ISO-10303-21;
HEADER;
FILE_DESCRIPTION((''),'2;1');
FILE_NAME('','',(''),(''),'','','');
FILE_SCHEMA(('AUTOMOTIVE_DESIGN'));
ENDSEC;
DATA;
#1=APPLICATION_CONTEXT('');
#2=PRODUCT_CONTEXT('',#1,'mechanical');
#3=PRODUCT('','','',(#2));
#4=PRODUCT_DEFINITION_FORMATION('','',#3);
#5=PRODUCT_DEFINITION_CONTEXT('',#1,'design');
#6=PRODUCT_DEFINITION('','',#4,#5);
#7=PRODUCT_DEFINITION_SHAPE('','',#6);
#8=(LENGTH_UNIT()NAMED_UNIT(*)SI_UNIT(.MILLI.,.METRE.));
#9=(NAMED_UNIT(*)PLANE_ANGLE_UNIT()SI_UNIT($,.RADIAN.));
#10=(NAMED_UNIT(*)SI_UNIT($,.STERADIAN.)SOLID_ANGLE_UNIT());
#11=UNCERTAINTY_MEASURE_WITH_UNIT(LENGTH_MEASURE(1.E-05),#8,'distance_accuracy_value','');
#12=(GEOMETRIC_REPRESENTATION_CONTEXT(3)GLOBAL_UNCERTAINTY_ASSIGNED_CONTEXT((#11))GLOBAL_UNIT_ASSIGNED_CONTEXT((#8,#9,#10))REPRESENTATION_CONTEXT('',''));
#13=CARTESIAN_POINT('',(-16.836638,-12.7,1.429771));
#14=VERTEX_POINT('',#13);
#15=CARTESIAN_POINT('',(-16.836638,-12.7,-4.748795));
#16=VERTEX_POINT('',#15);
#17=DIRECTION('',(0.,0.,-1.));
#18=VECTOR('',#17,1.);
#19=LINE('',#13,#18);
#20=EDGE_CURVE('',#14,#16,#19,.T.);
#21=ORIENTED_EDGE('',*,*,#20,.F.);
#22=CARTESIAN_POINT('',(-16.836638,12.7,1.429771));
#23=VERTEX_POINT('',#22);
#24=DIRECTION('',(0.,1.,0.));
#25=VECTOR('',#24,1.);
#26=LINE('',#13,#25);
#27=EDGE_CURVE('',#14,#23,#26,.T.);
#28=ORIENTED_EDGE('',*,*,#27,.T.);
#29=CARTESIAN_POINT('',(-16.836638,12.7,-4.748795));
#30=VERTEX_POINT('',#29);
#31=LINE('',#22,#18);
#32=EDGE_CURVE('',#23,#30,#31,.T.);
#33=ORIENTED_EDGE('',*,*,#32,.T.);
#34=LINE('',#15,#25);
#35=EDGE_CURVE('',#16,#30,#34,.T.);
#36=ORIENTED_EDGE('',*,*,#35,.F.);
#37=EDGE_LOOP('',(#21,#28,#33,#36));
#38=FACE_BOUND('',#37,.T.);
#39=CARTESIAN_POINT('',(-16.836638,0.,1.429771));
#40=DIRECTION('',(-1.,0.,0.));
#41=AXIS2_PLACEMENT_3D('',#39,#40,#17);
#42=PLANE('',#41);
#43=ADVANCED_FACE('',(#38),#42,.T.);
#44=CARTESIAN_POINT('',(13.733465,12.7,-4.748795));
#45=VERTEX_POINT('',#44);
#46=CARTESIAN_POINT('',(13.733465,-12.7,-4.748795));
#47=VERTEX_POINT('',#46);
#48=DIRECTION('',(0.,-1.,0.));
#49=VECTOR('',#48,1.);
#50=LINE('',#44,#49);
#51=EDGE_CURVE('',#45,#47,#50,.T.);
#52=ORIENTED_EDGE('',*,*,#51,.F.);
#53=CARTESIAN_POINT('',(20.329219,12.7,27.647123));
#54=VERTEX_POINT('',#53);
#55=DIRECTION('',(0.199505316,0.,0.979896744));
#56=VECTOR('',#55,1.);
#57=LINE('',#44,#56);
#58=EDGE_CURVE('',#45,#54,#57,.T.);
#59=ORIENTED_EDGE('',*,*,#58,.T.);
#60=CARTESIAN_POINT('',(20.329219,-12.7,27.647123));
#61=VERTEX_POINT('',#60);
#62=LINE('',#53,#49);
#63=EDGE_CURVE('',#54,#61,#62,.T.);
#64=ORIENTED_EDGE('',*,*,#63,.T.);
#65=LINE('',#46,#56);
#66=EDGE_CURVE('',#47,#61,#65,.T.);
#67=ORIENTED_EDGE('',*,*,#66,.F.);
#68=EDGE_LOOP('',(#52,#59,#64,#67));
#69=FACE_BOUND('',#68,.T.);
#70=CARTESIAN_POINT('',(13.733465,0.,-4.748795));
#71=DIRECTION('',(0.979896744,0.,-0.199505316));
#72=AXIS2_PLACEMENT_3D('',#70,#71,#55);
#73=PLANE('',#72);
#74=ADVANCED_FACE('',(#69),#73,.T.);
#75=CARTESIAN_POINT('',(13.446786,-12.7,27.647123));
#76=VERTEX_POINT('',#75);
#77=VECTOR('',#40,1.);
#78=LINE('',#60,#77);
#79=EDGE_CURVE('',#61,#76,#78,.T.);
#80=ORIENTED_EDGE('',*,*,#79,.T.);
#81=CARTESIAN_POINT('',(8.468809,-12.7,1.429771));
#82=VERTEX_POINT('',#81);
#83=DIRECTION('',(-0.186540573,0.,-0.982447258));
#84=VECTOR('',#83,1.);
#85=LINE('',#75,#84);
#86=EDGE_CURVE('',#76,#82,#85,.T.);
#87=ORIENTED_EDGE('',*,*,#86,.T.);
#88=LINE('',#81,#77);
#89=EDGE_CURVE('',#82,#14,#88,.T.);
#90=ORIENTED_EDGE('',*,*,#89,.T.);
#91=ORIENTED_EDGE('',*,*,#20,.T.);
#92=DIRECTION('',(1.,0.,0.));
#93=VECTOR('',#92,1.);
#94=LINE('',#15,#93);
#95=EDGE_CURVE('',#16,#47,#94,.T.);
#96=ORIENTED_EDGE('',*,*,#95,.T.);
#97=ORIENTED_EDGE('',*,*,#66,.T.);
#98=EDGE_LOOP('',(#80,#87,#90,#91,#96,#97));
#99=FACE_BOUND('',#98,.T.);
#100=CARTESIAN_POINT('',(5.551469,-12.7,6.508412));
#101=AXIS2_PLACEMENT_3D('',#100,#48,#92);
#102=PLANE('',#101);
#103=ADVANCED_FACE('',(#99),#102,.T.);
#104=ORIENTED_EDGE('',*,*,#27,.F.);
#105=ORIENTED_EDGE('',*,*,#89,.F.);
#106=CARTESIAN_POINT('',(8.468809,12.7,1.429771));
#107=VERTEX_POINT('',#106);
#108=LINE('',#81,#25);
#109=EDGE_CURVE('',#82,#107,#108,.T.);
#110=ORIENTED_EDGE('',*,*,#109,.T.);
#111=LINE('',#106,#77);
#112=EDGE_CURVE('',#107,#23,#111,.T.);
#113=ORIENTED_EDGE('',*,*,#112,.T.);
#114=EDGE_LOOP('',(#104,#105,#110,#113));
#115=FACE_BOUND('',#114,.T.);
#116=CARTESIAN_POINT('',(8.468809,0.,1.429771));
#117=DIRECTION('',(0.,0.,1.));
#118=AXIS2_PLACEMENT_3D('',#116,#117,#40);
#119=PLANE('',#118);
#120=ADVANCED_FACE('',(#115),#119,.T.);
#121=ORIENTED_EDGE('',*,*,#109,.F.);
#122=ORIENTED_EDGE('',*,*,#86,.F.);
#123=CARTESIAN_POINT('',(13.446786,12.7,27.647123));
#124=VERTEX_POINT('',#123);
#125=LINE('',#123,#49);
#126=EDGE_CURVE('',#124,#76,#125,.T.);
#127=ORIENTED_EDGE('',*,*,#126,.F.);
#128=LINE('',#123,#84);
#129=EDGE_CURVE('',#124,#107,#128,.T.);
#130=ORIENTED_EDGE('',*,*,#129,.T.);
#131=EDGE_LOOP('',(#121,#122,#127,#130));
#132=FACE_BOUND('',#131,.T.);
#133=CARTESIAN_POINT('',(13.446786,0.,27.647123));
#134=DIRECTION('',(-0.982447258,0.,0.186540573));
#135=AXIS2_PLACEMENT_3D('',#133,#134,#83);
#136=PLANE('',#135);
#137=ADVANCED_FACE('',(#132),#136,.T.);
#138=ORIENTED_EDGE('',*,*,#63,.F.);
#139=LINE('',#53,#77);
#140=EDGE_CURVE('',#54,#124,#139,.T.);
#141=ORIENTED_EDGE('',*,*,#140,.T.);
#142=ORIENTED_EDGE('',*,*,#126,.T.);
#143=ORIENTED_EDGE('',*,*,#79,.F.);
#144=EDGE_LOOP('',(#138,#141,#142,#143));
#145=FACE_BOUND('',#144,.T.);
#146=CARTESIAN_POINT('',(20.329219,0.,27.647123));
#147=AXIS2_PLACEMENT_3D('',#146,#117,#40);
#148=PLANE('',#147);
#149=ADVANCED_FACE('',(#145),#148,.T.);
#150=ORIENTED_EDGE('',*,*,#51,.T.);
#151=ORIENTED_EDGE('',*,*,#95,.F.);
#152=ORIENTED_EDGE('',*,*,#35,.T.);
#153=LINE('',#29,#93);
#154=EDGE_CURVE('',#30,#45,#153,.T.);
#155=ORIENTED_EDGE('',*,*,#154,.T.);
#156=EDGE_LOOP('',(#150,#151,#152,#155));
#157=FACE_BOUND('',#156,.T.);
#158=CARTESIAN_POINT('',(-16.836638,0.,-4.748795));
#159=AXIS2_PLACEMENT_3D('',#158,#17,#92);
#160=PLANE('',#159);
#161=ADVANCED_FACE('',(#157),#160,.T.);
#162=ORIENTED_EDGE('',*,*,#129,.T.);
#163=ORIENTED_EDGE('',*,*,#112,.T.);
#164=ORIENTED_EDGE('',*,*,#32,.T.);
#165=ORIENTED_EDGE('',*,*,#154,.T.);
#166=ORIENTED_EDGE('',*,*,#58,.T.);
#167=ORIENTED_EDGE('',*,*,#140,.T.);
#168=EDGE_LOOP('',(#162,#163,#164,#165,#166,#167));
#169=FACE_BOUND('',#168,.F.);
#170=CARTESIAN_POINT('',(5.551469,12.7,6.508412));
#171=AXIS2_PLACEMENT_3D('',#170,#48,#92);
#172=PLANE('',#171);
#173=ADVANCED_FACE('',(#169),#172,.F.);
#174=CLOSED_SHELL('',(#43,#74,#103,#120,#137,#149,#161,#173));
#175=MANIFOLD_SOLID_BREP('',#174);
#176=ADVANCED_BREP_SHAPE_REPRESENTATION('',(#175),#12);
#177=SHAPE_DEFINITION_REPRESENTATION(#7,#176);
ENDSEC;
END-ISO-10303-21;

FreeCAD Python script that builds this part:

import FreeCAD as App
import Part
import Sketcher
from FreeCAD import Vector
Q = App.Units.Quantity

doc = App.newDocument("Part")
body = doc.addObject("PartDesign::Body", "Body")

sketch1 = body.newObject("Sketcher::SketchObject", "Sketch")
sketch1.AttachmentSupport = (doc.getObject("XZ_Plane"), [""])
sketch1.MapMode = "FlatFace"
sketch1.addGeometry(Part.LineSegment(Vector(-16.836638, -4.748795, 0), Vector(13.733465, -4.748795, 0)), False)
sketch1.addGeometry(Part.LineSegment(Vector(13.733465, -4.748795, 0), Vector(20.329219, 27.647123, 0)), False)
sketch1.addGeometry(Part.LineSegment(Vector(20.329219, 27.647123, 0), Vector(13.446786, 27.647123, 0)), False)
sketch1.addGeometry(Part.LineSegment(Vector(13.446786, 27.647123, 0), Vector(8.468809, 1.429771, 0)), False)
sketch1.addGeometry(Part.LineSegment(Vector(8.468809, 1.429771, 0), Vector(-16.836638, 1.429771, 0)), False)
sketch1.addGeometry(Part.LineSegment(Vector(-16.836638, 1.429771, 0), Vector(-16.836638, -4.748795, 0)), False)
sketch1.addConstraint(Sketcher.Constraint("Coincident", 0, 2, 1, 1))
sketch1.addConstraint(Sketcher.Constraint("Coincident", 1, 2, 2, 1))
sketch1.addConstraint(Sketcher.Constraint("Coincident", 2, 2, 3, 1))
sketch1.addConstraint(Sketcher.Constraint("Coincident", 3, 2, 4, 1))
sketch1.addConstraint(Sketcher.Constraint("Coincident", 4, 2, 5, 1))
sketch1.addConstraint(Sketcher.Constraint("Coincident", 5, 2, 0, 1))
sketch1.addConstraint(Sketcher.Constraint("Horizontal", 0))
sketch1.addConstraint(Sketcher.Constraint("Horizontal", 2))
sketch1.addConstraint(Sketcher.Constraint("Horizontal", 4))
sketch1.addConstraint(Sketcher.Constraint("Vertical", 5))
sketch1.addConstraint(Sketcher.Constraint("Distance", 3, Q("26.68576 mm")))
sketch1.addConstraint(Sketcher.Constraint("DistanceX", 0, 1, 0, 2, Q("30.570103 mm")))
sketch1.addConstraint(Sketcher.Constraint("DistanceX", 2, 2, 2, 1, Q("6.882433 mm")))
sketch1.addConstraint(Sketcher.Constraint("DistanceX", 4, 2, 4, 1, Q("25.305447 mm")))
sketch1.addConstraint(Sketcher.Constraint("DistanceY", 5, 2, 5, 1, Q("6.178566 mm")))
sketch1.addConstraint(Sketcher.Constraint("DistanceX", -1, 1, 1, 2, Q("20.329219 mm")))
sketch1.addConstraint(Sketcher.Constraint("DistanceX", -1, 1, 3, 2, Q("8.468809 mm")))
sketch1.addConstraint(Sketcher.Constraint("DistanceY", -1, 1, 3, 2, Q("1.429771 mm")))
pad1 = body.newObject("PartDesign::Pad", "Pad")
pad1.Profile = sketch1
pad1.Type = "TwoLengths"
pad1.Length = Q("0.5 in")
pad1.Length2 = Q("0.5 in")

doc.recompute()
